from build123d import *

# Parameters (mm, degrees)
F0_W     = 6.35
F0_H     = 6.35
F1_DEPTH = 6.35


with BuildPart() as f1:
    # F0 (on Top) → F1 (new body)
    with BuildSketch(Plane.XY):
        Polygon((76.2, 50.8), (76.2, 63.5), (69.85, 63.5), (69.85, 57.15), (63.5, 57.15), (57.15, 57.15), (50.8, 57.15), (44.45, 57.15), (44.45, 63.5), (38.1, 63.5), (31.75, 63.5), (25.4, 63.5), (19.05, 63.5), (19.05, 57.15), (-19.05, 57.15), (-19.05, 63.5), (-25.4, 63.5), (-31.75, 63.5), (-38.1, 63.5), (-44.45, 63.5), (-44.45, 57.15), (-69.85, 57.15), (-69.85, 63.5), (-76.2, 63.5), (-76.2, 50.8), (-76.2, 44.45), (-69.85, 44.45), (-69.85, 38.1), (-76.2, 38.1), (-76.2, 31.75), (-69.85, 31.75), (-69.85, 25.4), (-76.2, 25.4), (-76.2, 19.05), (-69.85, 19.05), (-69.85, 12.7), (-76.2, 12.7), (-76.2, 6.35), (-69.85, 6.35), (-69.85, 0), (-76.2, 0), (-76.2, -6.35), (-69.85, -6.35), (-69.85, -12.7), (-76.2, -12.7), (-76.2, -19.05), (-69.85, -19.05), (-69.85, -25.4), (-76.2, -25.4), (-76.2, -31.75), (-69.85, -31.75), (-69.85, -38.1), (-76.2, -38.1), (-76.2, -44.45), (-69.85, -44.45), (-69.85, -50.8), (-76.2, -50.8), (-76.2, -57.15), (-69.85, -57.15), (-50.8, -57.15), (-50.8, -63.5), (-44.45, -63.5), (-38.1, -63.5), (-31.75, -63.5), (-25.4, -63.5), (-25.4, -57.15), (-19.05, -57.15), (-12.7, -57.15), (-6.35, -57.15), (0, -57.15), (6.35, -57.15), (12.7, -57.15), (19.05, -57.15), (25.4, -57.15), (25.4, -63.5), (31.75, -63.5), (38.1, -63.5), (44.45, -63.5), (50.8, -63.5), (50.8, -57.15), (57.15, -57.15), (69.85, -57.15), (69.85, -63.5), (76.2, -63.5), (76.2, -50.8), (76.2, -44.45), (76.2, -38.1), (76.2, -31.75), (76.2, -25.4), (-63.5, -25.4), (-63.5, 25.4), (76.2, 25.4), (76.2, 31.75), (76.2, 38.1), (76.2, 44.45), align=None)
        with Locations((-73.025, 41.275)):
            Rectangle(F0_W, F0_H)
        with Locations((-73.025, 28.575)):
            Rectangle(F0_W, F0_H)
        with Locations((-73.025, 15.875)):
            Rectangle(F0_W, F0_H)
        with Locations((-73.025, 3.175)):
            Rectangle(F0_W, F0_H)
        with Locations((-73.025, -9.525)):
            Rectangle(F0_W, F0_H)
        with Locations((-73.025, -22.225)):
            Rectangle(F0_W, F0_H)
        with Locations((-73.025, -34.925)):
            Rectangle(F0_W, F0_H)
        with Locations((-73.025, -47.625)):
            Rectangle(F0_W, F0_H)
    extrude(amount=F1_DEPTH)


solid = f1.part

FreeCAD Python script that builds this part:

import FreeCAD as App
import Part
import Sketcher
Q = App.Units.Quantity


def add_polygon(sketch, points):
    """Adds a closed chain of lines whose ends are joined by coincident constraints."""
    first, n = sketch.GeometryCount, len(points)
    for a, b in zip(points, points[1:] + points[:1]):
        sketch.addGeometry(Part.LineSegment(App.Vector(*a, 0), App.Vector(*b, 0)), False)
    for i in range(n):
        sketch.addConstraint(Sketcher.Constraint("Coincident", first + i, 2, first + (i + 1) % n, 1))

doc = App.newDocument("Part")
body = doc.addObject("PartDesign::Body", "Body")

sketch1 = body.newObject("Sketcher::SketchObject", "Sketch")
sketch1.AttachmentSupport = (doc.getObject("XY_Plane"), [""])
sketch1.MapMode = "FlatFace"
add_polygon(sketch1, [(76, 64), (70, 64), (70, 57), (44, 57), (44, 64), (19, 64), (19, 57), (-19, 57), (-19, 64), (-44, 64), (-44, 57), (-70, 57), (-70, 64), (-76, 64), (-76, -57), (-51, -57), (-51, -64), (-25, -64), (-25, -57), (25, -57), (25, -64), (51, -64), (51, -57), (70, -57), (70, -64), (76, -64), (76, -25), (-64, -25), (-64, 25), (76, 25)])
sketch1.addConstraint([
    Sketcher.Constraint("Horizontal", 0),
    Sketcher.Constraint("Vertical", 1),
    Sketcher.Constraint("Horizontal", 2),
    Sketcher.Constraint("Vertical", 3),
    Sketcher.Constraint("Horizontal", 4),
    Sketcher.Constraint("Vertical", 5),
    Sketcher.Constraint("Horizontal", 6),
    Sketcher.Constraint("Vertical", 7),
    Sketcher.Constraint("Horizontal", 8),
    Sketcher.Constraint("Vertical", 9),
    Sketcher.Constraint("Horizontal", 10),
    Sketcher.Constraint("Vertical", 11),
    Sketcher.Constraint("Horizontal", 12),
    Sketcher.Constraint("Vertical", 13),
    Sketcher.Constraint("Horizontal", 14),
    Sketcher.Constraint("Vertical", 15),
    Sketcher.Constraint("Horizontal", 16),
    Sketcher.Constraint("Vertical", 17),
    Sketcher.Constraint("Horizontal", 18),
    Sketcher.Constraint("Vertical", 19),
    Sketcher.Constraint("Horizontal", 20),
    Sketcher.Constraint("Vertical", 21),
    Sketcher.Constraint("Horizontal", 22),
    Sketcher.Constraint("Vertical", 23),
    Sketcher.Constraint("Horizontal", 24),
    Sketcher.Constraint("Vertical", 25),
    Sketcher.Constraint("Horizontal", 26),
    Sketcher.Constraint("Vertical", 27),
    Sketcher.Constraint("Horizontal", 28),
    Sketcher.Constraint("Vertical", 29),
    Sketcher.Constraint("Symmetric", 10, 2, 22, 2, -1, 1),
    Sketcher.Constraint("Symmetric", 12, 2, 24, 2, -1, 1),
    Sketcher.Constraint("Symmetric", 4, 2, 7, 2, -2),
    Sketcher.Constraint("Symmetric", 2, 2, 9, 2, -2),
    Sketcher.Constraint("Symmetric", 0, 2, 11, 2, -2),
    Sketcher.Constraint("Symmetric", 16, 2, 19, 2, -2),
    Sketcher.Constraint("Symmetric", 14, 2, 21, 2, -2),
    Sketcher.Constraint("Symmetric", 25, 2, 28, 2, -1),
    Sketcher.Constraint("Horizontal", 0, 2, 3, 2),
    Sketcher.Constraint("Horizontal", 2, 2, 5, 2),
    Sketcher.Constraint("Horizontal", 14, 2, 17, 2),
    Sketcher.Constraint("Horizontal", 20, 2, 23, 2),
    Sketcher.Constraint("Equal", 2, 4),
    Sketcher.Constraint("Equal", 10, 14),
    Sketcher.Constraint("Equal", 14, 16),
    Sketcher.Constraint("Equal", 24, 1),
    Sketcher.Constraint("Equal", 6, 25),
    Sketcher.Constraint("Equal", 18, 27),
    Sketcher.Constraint("DistanceX", 2, 2, 2, 1, Q("1 in")),
    Sketcher.Constraint("DistanceX", 18, 1, 18, 2, Q("2 in")),
    Sketcher.Constraint("DistanceX", 6, 2, 6, 1, Q("1.5 in")),
    Sketcher.Constraint("DistanceX", 26, 2, 26, 1, Q("5.5 in")),
])
pad1 = body.newObject("PartDesign::Pad", "Pad")
pad1.Profile = sketch1
pad1.Length = Q("0.25 in")

doc.recompute()
